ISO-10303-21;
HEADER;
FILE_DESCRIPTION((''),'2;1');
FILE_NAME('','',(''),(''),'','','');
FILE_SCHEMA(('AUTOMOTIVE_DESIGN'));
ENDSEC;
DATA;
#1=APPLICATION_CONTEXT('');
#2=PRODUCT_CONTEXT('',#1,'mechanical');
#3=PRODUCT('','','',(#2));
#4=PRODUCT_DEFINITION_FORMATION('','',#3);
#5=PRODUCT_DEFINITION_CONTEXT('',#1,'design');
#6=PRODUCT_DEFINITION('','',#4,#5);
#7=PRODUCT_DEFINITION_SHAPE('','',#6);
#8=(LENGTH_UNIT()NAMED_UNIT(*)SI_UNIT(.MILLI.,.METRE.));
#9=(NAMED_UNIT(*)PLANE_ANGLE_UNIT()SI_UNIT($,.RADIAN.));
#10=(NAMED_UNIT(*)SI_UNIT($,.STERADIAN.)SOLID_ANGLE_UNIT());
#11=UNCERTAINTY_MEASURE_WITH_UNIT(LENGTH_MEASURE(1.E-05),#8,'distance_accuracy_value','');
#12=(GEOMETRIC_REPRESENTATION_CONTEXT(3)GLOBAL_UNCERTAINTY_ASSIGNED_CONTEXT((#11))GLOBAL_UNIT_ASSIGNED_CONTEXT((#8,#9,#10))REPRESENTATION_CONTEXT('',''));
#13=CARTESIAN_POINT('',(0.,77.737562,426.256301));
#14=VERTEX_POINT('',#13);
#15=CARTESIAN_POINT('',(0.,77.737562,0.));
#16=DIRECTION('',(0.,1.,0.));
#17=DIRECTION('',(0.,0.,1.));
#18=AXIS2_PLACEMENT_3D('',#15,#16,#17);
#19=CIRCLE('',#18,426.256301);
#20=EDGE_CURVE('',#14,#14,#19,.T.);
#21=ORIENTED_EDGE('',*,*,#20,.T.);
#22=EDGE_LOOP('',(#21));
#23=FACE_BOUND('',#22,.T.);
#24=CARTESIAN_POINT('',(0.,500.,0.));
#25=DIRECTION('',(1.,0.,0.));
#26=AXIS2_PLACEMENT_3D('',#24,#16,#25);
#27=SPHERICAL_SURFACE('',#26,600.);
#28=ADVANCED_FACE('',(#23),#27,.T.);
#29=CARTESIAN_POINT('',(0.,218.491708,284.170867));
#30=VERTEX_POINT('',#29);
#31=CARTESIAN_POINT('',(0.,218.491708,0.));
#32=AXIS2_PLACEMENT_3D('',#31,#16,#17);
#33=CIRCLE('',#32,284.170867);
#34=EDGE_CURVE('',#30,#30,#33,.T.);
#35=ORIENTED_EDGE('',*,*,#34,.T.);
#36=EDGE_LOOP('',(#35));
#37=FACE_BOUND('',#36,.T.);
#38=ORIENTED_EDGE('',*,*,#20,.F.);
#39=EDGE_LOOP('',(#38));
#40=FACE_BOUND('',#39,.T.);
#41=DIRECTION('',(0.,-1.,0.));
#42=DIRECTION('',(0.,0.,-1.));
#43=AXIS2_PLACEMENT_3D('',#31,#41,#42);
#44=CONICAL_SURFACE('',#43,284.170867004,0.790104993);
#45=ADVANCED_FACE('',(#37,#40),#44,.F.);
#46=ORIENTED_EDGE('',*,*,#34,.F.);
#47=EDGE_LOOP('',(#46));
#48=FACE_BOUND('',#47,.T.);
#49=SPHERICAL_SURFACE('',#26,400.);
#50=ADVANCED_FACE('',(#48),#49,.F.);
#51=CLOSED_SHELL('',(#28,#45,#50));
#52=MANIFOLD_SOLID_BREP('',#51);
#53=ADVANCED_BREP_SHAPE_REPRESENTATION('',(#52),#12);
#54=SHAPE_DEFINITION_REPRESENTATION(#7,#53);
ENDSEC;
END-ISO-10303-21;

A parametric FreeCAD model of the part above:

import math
import FreeCAD as App
import Part
import Sketcher
from FreeCAD import Vector

doc = App.newDocument("Part")
params = doc.addObject("Spreadsheet::Sheet", "Params")
for row, (alias, value) in enumerate([
    ("sketch1_radius", "400 mm"),
    ("sketch1_radius2", "600 mm"),
    ("revolution_angle", "360 deg"),
], start=1):
    params.set(f"A{row}", alias)
    params.set(f"B{row}", "=" + value)
    params.setAlias(f"B{row}", alias)

body = doc.addObject("PartDesign::Body", "Body")

sketch1 = body.newObject("Sketcher::SketchObject", "Sketch")
sketch1.AttachmentSupport = (doc.getObject("XY_Plane"), [""])
sketch1.MapMode = "FlatFace"
sketch1.addGeometry([
    Part.LineSegment(Vector(0, 1100, 0), Vector(0, 900, 0)),
    Part.ArcOfCircle(Part.Circle(Vector(0, 500, 0), Vector(0, 0, 1), 400), math.radians(-45), math.radians(90)),
    Part.LineSegment(Vector(284, 218, 0), Vector(426, 78, 0)),
    Part.ArcOfCircle(Part.Circle(Vector(0, 500, 0), Vector(0, 0, 1), 600), math.radians(-45), math.radians(90)),
], False)
sketch1.addConstraint([
    Sketcher.Constraint("Coincident", 0, 2, 1, 2),
    Sketcher.Constraint("Coincident", 1, 1, 2, 1),
    Sketcher.Constraint("Coincident", 2, 2, 3, 1),
    Sketcher.Constraint("Coincident", 3, 2, 0, 1),
    Sketcher.Constraint("Vertical", 0),
    Sketcher.Constraint("Coincident", 3, 3, 1, 3),
    Sketcher.Constraint("PointOnObject", 1, 3, -2),
    Sketcher.Constraint("PointOnObject", 0, 2, -2),
    Sketcher.Constraint("Radius", 1, 400.0),
    Sketcher.Constraint("Radius", 3, 600.0),
    Sketcher.Constraint("DistanceY", -1, 1, 1, 3, 500.0),
    Sketcher.Constraint("DistanceX", -1, 1, 2, 2, 426.256301),
    Sketcher.Constraint("DistanceY", -1, 1, 1, 1, 218.491708),
])
sketch1.setExpression("Constraints[8]", "Params.sketch1_radius")
sketch1.setExpression("Constraints[9]", "Params.sketch1_radius2")
revolution = body.newObject("PartDesign::Revolution", "Revolution")
revolution.Profile = sketch1
revolution.ReferenceAxis = (sketch1, ["V_Axis"])
revolution.setExpression("Angle", "Params.revolution_angle")

doc.recompute()
